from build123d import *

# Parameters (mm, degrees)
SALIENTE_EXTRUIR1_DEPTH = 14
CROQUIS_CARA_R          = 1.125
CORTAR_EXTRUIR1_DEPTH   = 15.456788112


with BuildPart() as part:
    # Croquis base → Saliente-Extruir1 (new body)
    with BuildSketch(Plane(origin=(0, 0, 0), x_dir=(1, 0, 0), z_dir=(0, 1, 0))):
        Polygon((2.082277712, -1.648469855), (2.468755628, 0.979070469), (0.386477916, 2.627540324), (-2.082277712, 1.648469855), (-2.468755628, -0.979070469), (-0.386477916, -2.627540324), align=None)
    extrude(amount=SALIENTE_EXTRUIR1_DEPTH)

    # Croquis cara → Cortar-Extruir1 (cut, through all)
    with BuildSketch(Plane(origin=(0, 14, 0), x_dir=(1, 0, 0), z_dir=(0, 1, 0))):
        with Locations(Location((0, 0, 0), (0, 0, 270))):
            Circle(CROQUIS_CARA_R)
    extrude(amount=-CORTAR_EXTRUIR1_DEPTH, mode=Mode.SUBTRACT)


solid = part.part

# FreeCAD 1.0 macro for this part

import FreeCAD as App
import Part
import Sketcher

V = App.Vector


def add_polygon(sketch, points):
    """Adds a closed chain of lines whose ends are joined by coincident constraints."""
    first, n = sketch.GeometryCount, len(points)
    for a, b in zip(points, points[1:] + points[:1]):
        sketch.addGeometry(Part.LineSegment(App.Vector(*a, 0), App.Vector(*b, 0)), False)
    for i in range(n):
        sketch.addConstraint(Sketcher.Constraint("Coincident", first + i, 2, first + (i + 1) % n, 1))

doc = App.newDocument("Part")
params = doc.addObject("Spreadsheet::Sheet", "Params")
for row, (alias, value) in enumerate([
    ("pad1_length", "14 mm"),
    ("sketch2_diameter", "2.25 mm"),
], start=1):
    params.set(f"A{row}", alias)
    params.set(f"B{row}", "=" + value)
    params.setAlias(f"B{row}", alias)

body = doc.addObject("PartDesign::Body", "Body")

# Sketch on XZ plane
sketch1 = body.newObject("Sketcher::SketchObject", "Sketch")
sketch1.AttachmentSupport = (doc.getObject("XZ_Plane"), [""])
sketch1.MapMode = "FlatFace"
add_polygon(sketch1, [(2.1, 1.6), (2.5, -1), (0.4, -2.6), (-2.1, -1.6), (-2.5, 1), (-0.4, 2.6)])  # lines 0-5
sketch1.addConstraint(Sketcher.Constraint("Symmetric", 0, 2, 3, 2, -1, 1))
sketch1.addConstraint(Sketcher.Constraint("Symmetric", 1, 2, 4, 2, -1, 1))
sketch1.addConstraint(Sketcher.Constraint("Symmetric", 2, 2, 5, 2, -1, 1))
sketch1.addConstraint(Sketcher.Constraint("Equal", 0, 1))
sketch1.addConstraint(Sketcher.Constraint("Equal", 1, 2))
sketch1.addConstraint(Sketcher.Constraint("DistanceY", 2, 2, 0, 2, 0.669399))
sketch1.addConstraint(Sketcher.Constraint("DistanceX", 2, 2, 4, 2, 1.6958))
sketch1.addConstraint(Sketcher.Constraint("Distance", 0, 2.655811))
sketch1.addConstraint(Sketcher.Constraint("DistanceY", 0, 2, -1, 1, 0.97907))
pad1 = body.newObject("PartDesign::Pad", "Pad")
pad1.Profile = sketch1
pad1.setExpression("Length", "Params.pad1_length")
pad1.Reversed = True

# Sketch on XZ plane
sketch2 = body.newObject("Sketcher::SketchObject", "Sketch001")
sketch2.AttachmentSupport = (doc.getObject("XZ_Plane"), [""])
sketch2.MapMode = "FlatFace"
sketch2.AttachmentOffset = App.Placement(V(0, 0, -14), App.Rotation())
sketch2.addGeometry(Part.Circle(V(0, 0, 0), V(0, 0, 1), 1.1), False)
sketch2.addConstraint(Sketcher.Constraint("Coincident", 0, 3, -1, 1))
sketch2.addConstraint(Sketcher.Constraint("Diameter", 0, 2.25))
sketch2.setExpression("Constraints[1]", "Params.sketch2_diameter")
pocket1 = body.newObject("PartDesign::Pocket", "Pocket")
pocket1.Profile = sketch2
pocket1.Type = "ThroughAll"
pocket1.Reversed = True

doc.recompute()
